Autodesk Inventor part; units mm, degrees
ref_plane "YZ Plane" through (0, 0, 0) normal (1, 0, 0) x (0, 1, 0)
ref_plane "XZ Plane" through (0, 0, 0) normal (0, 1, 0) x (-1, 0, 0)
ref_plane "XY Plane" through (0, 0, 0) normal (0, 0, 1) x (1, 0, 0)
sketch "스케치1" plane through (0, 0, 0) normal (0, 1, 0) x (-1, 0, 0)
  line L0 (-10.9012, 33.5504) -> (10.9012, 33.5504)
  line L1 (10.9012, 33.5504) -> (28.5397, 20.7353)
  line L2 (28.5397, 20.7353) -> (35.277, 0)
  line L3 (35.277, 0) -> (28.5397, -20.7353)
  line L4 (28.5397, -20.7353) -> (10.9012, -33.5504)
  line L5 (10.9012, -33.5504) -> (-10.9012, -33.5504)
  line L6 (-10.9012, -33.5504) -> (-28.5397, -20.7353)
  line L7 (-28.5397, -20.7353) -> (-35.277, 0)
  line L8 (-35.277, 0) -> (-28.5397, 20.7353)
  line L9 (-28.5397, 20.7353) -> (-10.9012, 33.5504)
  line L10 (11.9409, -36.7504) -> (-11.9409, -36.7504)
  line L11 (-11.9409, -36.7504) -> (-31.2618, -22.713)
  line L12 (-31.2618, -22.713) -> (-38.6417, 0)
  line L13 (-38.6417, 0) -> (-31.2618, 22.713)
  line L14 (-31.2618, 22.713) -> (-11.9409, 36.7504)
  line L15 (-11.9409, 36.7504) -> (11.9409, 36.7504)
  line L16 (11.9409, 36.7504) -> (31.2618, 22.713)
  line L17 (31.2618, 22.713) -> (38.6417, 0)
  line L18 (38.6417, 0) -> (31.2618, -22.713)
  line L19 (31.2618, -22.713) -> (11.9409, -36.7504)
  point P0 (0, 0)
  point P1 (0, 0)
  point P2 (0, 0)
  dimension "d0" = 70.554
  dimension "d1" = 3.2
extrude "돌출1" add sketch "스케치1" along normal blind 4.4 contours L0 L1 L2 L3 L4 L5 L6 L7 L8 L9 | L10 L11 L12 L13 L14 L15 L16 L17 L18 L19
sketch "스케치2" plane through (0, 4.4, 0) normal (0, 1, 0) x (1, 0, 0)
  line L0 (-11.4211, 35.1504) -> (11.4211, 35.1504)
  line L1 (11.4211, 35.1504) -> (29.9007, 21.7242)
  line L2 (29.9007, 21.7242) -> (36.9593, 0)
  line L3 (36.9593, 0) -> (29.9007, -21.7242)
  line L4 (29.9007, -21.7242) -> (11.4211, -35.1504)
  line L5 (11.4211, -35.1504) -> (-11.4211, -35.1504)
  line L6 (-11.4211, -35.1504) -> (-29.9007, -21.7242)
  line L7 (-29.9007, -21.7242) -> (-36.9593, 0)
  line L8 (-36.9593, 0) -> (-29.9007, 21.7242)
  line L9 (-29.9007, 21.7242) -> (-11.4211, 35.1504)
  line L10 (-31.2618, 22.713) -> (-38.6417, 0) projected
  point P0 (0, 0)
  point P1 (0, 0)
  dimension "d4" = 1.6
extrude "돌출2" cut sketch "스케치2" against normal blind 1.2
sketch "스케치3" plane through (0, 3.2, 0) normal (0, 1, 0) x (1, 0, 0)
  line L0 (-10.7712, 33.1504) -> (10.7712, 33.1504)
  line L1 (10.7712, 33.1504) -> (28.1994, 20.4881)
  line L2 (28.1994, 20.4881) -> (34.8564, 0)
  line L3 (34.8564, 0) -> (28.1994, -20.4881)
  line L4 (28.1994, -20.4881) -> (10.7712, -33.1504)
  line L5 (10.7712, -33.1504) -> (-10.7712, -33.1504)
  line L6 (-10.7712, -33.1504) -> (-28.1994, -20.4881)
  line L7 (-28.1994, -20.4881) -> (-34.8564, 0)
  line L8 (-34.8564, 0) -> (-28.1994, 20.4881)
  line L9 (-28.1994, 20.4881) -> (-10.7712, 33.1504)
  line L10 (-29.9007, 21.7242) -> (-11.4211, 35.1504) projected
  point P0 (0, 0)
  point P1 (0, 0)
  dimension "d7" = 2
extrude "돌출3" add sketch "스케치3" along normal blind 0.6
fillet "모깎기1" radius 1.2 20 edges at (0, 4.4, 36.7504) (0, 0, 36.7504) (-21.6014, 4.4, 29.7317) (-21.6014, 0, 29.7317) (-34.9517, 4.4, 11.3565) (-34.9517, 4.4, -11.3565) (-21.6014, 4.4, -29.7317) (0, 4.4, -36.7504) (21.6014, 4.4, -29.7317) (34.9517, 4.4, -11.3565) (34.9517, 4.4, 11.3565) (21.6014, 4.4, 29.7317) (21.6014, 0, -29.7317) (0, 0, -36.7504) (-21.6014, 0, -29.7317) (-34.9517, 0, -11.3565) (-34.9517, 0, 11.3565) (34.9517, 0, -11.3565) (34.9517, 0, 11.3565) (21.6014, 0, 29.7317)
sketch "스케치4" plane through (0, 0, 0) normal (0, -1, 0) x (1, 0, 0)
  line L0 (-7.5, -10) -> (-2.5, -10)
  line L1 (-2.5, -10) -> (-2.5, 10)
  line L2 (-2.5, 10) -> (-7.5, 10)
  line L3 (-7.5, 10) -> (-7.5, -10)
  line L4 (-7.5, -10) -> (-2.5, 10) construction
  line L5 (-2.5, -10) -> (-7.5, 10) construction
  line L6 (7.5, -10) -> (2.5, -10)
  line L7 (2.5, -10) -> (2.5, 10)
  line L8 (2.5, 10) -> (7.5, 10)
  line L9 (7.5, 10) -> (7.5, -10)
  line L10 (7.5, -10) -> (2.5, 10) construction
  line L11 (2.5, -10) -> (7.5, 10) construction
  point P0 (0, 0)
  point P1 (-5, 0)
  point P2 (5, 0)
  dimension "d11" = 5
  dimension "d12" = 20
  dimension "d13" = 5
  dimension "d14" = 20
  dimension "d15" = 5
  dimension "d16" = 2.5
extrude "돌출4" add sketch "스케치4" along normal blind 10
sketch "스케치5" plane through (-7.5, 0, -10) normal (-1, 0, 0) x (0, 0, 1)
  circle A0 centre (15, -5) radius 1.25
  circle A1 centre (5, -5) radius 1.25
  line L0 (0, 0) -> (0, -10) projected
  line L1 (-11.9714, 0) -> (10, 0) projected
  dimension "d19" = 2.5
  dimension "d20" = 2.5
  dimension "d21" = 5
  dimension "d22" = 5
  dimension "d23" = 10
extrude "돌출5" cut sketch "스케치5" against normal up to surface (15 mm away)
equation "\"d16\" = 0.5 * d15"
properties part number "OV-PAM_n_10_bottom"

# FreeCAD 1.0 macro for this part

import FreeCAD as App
import Part
import Sketcher
from FreeCAD import Vector
Q = App.Units.Quantity


def edges_at(feature, points):
    """Names of the edges that pass closest to the given points."""
    edges = feature.Shape.Edges
    near = lambda p: min(range(len(edges)), key=lambda i: edges[i].distToShape(Part.Vertex(*p))[0])
    return sorted({f"Edge{near(p) + 1}" for p in points})


def add_polygon(sketch, points):
    """Adds a closed chain of lines whose ends are joined by coincident constraints."""
    first, n = sketch.GeometryCount, len(points)
    for a, b in zip(points, points[1:] + points[:1]):
        sketch.addGeometry(Part.LineSegment(App.Vector(*a, 0), App.Vector(*b, 0)), False)
    for i in range(n):
        sketch.addConstraint(Sketcher.Constraint("Coincident", first + i, 2, first + (i + 1) % n, 1))

doc = App.newDocument("Part")
body = doc.addObject("PartDesign::Body", "Body")

sketch1 = doc.addObject("Sketcher::SketchObject", "Sketch")
body.addObject(sketch1)
sketch1.AttachmentSupport = (doc.XZ_Plane, [""])
sketch1.MapMode = "FlatFace"
add_polygon(sketch1, [(11.9409, -36.7504), (-11.9409, -36.7504), (-31.2618, -22.713), (-38.6417, 0), (-31.2618, 22.713), (-11.9409, 36.7504), (11.9409, 36.7504), (31.2618, 22.713), (38.6417, 0), (31.2618, -22.713)])
sketch1.addConstraint([
    Sketcher.Constraint("Horizontal", 0),
    Sketcher.Constraint("Horizontal", 5),
    Sketcher.Constraint("Symmetric", 0, 2, 5, 2, -1, 1),
    Sketcher.Constraint("Symmetric", 1, 2, 6, 2, -1, 1),
    Sketcher.Constraint("Symmetric", 2, 2, 7, 2, -1, 1),
    Sketcher.Constraint("Symmetric", 3, 2, 8, 2, -1, 1),
    Sketcher.Constraint("Symmetric", 3, 2, 6, 2, -2),
    Sketcher.Constraint("PointOnObject", 2, 2, -1),
    Sketcher.Constraint("Parallel", 4, 9),
    Sketcher.Constraint("Vertical", 0, 2, 4, 2),
    Sketcher.Constraint("Equal", 1, 2),
    Sketcher.Constraint("Angle", 1, Q("144 deg")),
    Sketcher.Constraint("Angle", 2, Q("108 deg")),
    Sketcher.Constraint("DistanceX", 2, 2, 1, 2, Q("7.38 mm")),
    Sketcher.Constraint("DistanceX", 0, 2, 0, 1, Q("23.8818 mm")),
])
pad1 = doc.addObject("PartDesign::Pad", "Pad")
body.addObject(pad1)
pad1.Profile = sketch1
pad1.Length = 4.4
pad1.Reversed = True

sketch2 = doc.addObject("Sketcher::SketchObject", "Sketch001")
body.addObject(sketch2)
sketch2.AttachmentSupport = (doc.XZ_Plane, [""])
sketch2.MapMode = "FlatFace"
sketch2.AttachmentOffset = App.Placement(Vector(0, 0, -4.4), App.Rotation())
add_polygon(sketch2, [(11.4211, -35.1504), (-11.4211, -35.1504), (-29.9007, -21.7242), (-36.9593, 0), (-29.9007, 21.7242), (-11.4211, 35.1504), (11.4211, 35.1504), (29.9007, 21.7242), (36.9593, 0), (29.9007, -21.7242)])
sketch2.addConstraint([
    Sketcher.Constraint("Horizontal", 0),
    Sketcher.Constraint("Horizontal", 5),
    Sketcher.Constraint("Symmetric", 0, 2, 5, 2, -1, 1),
    Sketcher.Constraint("Symmetric", 1, 2, 6, 2, -1, 1),
    Sketcher.Constraint("Symmetric", 2, 2, 7, 2, -1, 1),
    Sketcher.Constraint("Symmetric", 3, 2, 8, 2, -1, 1),
    Sketcher.Constraint("Symmetric", 3, 2, 6, 2, -2),
    Sketcher.Constraint("PointOnObject", 2, 2, -1),
    Sketcher.Constraint("Parallel", 4, 9),
    Sketcher.Constraint("Vertical", 0, 2, 4, 2),
    Sketcher.Constraint("Equal", 1, 2),
    Sketcher.Constraint("Angle", 1, Q("144 deg")),
    Sketcher.Constraint("Angle", 2, Q("108 deg")),
    Sketcher.Constraint("DistanceX", 2, 2, 6, 2, Q("66.86 mm")),
    Sketcher.Constraint("Distance", 1, Q("22.842 mm")),
])
pocket1 = doc.addObject("PartDesign::Pocket", "Pocket")
body.addObject(pocket1)
pocket1.Profile = sketch2
pocket1.Length = 1.2
pocket1.Reversed = True

sketch3 = doc.addObject("Sketcher::SketchObject", "Sketch002")
body.addObject(sketch3)
sketch3.AttachmentSupport = (doc.XZ_Plane, [""])
sketch3.MapMode = "FlatFace"
sketch3.AttachmentOffset = App.Placement(Vector(0, 0, -3.2), App.Rotation())
add_polygon(sketch3, [(10.7712, -33.1504), (-10.7712, -33.1504), (-28.1994, -20.4881), (-34.8564, 0), (-28.1994, 20.4881), (-10.7712, 33.1504), (10.7712, 33.1504), (28.1994, 20.4881), (34.8564, 0), (28.1994, -20.4881)])
sketch3.addConstraint([
    Sketcher.Constraint("Horizontal", 0),
    Sketcher.Constraint("Horizontal", 5),
    Sketcher.Constraint("Symmetric", 0, 2, 5, 2, -1, 1),
    Sketcher.Constraint("Symmetric", 1, 2, 6, 2, -1, 1),
    Sketcher.Constraint("Symmetric", 2, 2, 7, 2, -1, 1),
    Sketcher.Constraint("Symmetric", 3, 2, 8, 2, -1, 1),
    Sketcher.Constraint("Symmetric", 3, 2, 6, 2, -2),
    Sketcher.Constraint("PointOnObject", 2, 2, -1),
    Sketcher.Constraint("Parallel", 4, 9),
    Sketcher.Constraint("Vertical", 0, 2, 4, 2),
    Sketcher.Constraint("Equal", 1, 2),
    Sketcher.Constraint("Angle", 1, Q("144 deg")),
    Sketcher.Constraint("Angle", 2, Q("108 deg")),
    Sketcher.Constraint("DistanceX", 0, 2, 0, 1, Q("21.5424 mm")),
    Sketcher.Constraint("DistanceY", 1, 2, -1, 1, Q("20.488 mm")),
])
pad2 = doc.addObject("PartDesign::Pad", "Pad001")
body.addObject(pad2)
pad2.Profile = sketch3
pad2.Length = 0.6
pad2.Reversed = True
doc.recompute()

fillet = doc.addObject("PartDesign::Fillet", "Fillet")
body.addObject(fillet)
fillet.Base = (pad2, edges_at(pad2, [
    (0, 4.4, 36.75),
    (0, 0, 36.75),
    (-21.601, 4.4, 29.732),
    (-21.601, 0, 29.732),
    (-34.952, 4.4, 11.357),
    (-34.952, 4.4, -11.357),
    (-21.601, 4.4, -29.732),
    (0, 4.4, -36.75),
    (21.601, 4.4, -29.732),
    (34.952, 4.4, -11.357),
    (34.952, 4.4, 11.357),
    (21.601, 4.4, 29.732),
    (21.601, 0, -29.732),
    (0, 0, -36.75),
    (-21.601, 0, -29.732),
    (-34.952, 0, -11.357),
    (-34.952, 0, 11.357),
    (34.952, 0, -11.357),
    (34.952, 0, 11.357),
    (21.601, 0, 29.732),
]))
fillet.Radius = 1.2

sketch4 = doc.addObject("Sketcher::SketchObject", "Sketch003")
body.addObject(sketch4)
sketch4.AttachmentSupport = (doc.XZ_Plane, [""])
sketch4.MapMode = "FlatFace"
add_polygon(sketch4, [(-7.5, 10), (-7.5, -10), (-2.5, -10), (-2.5, 10)])
add_polygon(sketch4, [(2.5, -10), (7.5, -10), (7.5, 10), (2.5, 10)])
sketch4.addConstraint([
    Sketcher.Constraint("Vertical", 0),
    Sketcher.Constraint("Horizontal", 1),
    Sketcher.Constraint("Vertical", 2),
    Sketcher.Constraint("Horizontal", 3),
    Sketcher.Constraint("Horizontal", 4),
    Sketcher.Constraint("Vertical", 5),
    Sketcher.Constraint("Horizontal", 6),
    Sketcher.Constraint("Vertical", 7),
    Sketcher.Constraint("Symmetric", 3, 2, 4, 2, -1, 1),
    Sketcher.Constraint("Symmetric", 1, 2, 6, 2, -1, 1),
    Sketcher.Constraint("Horizontal", 1, 2, 4, 2),
    Sketcher.Constraint("DistanceX", 1, 1, 1, 2, Q("5 mm")),
    Sketcher.Constraint("DistanceY", 0, 2, 0, 1, Q("20 mm")),
    Sketcher.Constraint("DistanceX", 2, 2, 6, 2, Q("5 mm")),
])
pad3 = doc.addObject("PartDesign::Pad", "Pad002")
body.addObject(pad3)
pad3.Profile = sketch4
pad3.Length = 10

sketch5 = doc.addObject("Sketcher::SketchObject", "Sketch004")
body.addObject(sketch5)
sketch5.AttachmentSupport = (doc.YZ_Plane, [""])
sketch5.MapMode = "FlatFace"
sketch5.AttachmentOffset = App.Placement(Vector(0, 0, -7.5), App.Rotation())
sketch5.addGeometry([
    Part.Circle(Vector(-5, 5, 0), Vector(0, 0, 1), 1.25),
    Part.Circle(Vector(-5, -5, 0), Vector(0, 0, 1), 1.25),
], False)
sketch5.addConstraint([
    Sketcher.Constraint("Equal", 0, 1),
    Sketcher.Constraint("Symmetric", 0, 3, 1, 3, -1),
    Sketcher.Constraint("Diameter", 0, Q("2.5 mm")),
    Sketcher.Constraint("DistanceX", 0, 3, -1, 1, Q("5 mm")),
    Sketcher.Constraint("DistanceY", -1, 1, 0, 3, Q("5 mm")),
])
pocket2 = doc.addObject("PartDesign::Pocket", "Pocket001")
body.addObject(pocket2)
pocket2.Profile = sketch5
pocket2.Length = 15
pocket2.Reversed = True

doc.recompute()
